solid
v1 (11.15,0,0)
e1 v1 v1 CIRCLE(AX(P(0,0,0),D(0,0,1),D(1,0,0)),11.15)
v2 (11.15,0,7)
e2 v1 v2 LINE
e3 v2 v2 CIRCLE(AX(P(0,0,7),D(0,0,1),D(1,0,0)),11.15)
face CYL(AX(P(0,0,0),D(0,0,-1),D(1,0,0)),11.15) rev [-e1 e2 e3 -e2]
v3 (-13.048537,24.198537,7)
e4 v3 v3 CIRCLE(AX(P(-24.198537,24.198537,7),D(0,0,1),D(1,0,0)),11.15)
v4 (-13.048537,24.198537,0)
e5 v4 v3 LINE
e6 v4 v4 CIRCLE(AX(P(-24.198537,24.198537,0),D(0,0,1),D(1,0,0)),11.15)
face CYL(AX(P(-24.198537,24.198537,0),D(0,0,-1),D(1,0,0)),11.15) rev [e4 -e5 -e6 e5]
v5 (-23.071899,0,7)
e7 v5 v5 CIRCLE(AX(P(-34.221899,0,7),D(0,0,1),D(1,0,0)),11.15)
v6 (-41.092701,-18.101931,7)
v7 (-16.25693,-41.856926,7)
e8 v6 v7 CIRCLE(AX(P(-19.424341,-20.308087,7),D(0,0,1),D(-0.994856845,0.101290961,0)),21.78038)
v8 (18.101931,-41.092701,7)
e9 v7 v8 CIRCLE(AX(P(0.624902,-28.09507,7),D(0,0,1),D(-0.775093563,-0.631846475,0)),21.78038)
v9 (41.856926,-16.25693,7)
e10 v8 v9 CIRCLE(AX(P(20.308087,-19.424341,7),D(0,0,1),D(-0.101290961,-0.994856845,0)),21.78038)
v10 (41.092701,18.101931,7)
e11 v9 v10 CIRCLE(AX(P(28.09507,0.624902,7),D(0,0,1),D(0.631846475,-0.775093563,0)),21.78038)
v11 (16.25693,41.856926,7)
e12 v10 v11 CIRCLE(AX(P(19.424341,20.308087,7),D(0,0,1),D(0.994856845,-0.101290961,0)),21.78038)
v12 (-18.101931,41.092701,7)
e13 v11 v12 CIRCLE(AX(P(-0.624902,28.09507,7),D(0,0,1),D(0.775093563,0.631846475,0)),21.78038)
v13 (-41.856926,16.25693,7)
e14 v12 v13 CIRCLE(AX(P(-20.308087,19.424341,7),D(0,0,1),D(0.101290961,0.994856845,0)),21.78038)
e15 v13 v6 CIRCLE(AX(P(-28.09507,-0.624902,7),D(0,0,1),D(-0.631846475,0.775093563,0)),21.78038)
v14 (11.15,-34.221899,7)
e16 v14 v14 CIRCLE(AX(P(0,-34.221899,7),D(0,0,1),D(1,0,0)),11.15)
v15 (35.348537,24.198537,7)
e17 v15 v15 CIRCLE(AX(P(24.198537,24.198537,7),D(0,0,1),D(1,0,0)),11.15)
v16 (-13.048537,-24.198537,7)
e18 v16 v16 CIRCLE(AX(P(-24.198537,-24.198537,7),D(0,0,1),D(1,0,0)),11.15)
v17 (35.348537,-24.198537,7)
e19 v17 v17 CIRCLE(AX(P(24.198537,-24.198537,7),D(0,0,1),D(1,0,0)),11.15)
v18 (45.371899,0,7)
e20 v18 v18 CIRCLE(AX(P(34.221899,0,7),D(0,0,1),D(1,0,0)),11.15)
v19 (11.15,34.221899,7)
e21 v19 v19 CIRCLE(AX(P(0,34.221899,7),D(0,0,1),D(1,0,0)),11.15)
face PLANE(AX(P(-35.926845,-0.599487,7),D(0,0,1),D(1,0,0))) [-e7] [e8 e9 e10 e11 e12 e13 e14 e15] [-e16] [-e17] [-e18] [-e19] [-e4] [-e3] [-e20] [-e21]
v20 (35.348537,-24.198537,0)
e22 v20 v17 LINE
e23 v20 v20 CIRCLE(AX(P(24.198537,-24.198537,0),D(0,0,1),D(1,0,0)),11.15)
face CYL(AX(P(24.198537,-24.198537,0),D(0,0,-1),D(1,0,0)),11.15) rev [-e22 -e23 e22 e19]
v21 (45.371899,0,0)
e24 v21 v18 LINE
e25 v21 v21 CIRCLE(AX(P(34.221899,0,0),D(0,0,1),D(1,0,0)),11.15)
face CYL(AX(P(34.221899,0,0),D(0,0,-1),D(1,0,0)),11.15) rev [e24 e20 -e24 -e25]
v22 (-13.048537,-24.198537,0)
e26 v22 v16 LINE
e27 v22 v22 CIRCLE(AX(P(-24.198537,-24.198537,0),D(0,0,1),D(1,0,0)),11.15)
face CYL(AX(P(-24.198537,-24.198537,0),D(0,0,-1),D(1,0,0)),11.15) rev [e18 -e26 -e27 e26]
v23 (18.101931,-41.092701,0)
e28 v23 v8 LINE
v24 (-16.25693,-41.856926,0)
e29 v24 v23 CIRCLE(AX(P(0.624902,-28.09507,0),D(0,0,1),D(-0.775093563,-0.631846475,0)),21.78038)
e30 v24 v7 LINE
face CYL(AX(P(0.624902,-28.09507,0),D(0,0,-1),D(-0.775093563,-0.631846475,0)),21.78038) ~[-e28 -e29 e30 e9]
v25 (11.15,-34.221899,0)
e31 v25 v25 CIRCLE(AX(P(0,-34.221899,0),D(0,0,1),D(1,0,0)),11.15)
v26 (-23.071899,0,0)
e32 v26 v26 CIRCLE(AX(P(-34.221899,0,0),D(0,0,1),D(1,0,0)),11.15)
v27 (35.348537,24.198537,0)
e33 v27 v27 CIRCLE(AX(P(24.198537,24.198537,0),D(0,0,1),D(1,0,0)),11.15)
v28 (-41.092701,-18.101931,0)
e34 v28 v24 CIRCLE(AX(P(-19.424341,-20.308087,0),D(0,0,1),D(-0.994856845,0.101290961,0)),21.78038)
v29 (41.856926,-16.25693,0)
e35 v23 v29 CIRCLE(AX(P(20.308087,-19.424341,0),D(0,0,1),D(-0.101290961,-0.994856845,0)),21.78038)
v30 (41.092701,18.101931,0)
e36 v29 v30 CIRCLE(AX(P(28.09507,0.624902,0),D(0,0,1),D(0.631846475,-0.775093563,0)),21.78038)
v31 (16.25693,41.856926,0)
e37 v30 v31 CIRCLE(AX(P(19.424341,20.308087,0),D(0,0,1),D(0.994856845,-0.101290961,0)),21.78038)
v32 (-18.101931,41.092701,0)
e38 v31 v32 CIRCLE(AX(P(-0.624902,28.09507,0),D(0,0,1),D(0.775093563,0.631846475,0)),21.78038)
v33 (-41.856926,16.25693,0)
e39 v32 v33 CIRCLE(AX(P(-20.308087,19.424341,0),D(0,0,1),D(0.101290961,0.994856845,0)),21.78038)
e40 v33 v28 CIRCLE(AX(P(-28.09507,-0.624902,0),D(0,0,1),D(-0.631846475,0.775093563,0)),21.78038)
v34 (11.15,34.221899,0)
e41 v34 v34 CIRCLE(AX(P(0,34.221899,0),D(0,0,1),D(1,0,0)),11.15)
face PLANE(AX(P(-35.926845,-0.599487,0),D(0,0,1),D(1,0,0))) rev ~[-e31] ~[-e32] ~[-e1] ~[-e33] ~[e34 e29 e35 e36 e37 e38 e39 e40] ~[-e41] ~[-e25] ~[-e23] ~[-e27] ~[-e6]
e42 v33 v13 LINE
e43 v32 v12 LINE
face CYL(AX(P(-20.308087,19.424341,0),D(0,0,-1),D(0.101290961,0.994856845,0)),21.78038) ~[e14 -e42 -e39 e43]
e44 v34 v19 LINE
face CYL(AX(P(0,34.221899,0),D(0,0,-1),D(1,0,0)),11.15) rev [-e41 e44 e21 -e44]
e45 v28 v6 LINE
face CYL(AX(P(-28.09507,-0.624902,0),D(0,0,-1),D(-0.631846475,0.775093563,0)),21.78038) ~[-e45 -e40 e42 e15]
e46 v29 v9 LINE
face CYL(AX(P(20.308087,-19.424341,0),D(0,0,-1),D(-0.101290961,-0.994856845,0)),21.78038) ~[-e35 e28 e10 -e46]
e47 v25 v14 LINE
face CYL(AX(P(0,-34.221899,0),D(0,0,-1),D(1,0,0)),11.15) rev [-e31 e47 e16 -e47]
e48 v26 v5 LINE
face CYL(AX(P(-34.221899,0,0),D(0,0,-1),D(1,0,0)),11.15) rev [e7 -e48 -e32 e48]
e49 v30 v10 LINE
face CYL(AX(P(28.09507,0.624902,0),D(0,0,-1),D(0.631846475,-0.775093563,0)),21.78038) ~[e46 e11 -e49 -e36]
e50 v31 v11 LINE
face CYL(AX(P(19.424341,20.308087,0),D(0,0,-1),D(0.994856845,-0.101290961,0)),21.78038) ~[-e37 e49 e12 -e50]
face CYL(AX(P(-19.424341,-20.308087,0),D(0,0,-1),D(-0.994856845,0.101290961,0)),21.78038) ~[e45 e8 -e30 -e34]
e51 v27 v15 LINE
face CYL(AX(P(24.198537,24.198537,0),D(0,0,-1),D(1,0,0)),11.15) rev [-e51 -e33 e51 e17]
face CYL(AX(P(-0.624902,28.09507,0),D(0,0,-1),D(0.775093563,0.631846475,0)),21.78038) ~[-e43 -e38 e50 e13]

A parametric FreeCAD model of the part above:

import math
import FreeCAD as App
import Part
import Sketcher

V = App.Vector
Q = App.Units.Quantity

doc = App.newDocument("Part")
body = doc.addObject("PartDesign::Body", "Body")

# Sketch on XY plane
sketch1 = body.newObject("Sketcher::SketchObject", "Sketch")
sketch1.AttachmentSupport = (doc.getObject("XY_Plane"), [""])
sketch1.MapMode = "FlatFace"
sketch1.addGeometry(Part.ArcOfCircle(Part.Circle(V(-28, -1, 0), V(0, 0, 1), 22), math.radians(129), math.radians(233)), False)
sketch1.addGeometry(Part.ArcOfCircle(Part.Circle(V(-19, -20, 0), V(0, 0, 1), 22), math.radians(174), math.radians(278)), False)
sketch1.addGeometry(Part.ArcOfCircle(Part.Circle(V(1, -28, 0), V(0, 0, 1), 22), math.radians(-141), math.radians(-37)), False)
sketch1.addGeometry(Part.ArcOfCircle(Part.Circle(V(20, -19, 0), V(0, 0, 1), 22), math.radians(-96), math.radians(8)), False)
sketch1.addGeometry(Part.ArcOfCircle(Part.Circle(V(28, 1, 0), V(0, 0, 1), 22), math.radians(-51), math.radians(53)), False)
sketch1.addGeometry(Part.ArcOfCircle(Part.Circle(V(19, 20, 0), V(0, 0, 1), 22), math.radians(-6), math.radians(98)), False)
sketch1.addGeometry(Part.ArcOfCircle(Part.Circle(V(-1, 28, 0), V(0, 0, 1), 22), math.radians(39), math.radians(143)), False)
sketch1.addGeometry(Part.ArcOfCircle(Part.Circle(V(-20, 19, 0), V(0, 0, 1), 22), math.radians(84), math.radians(188)), False)
sketch1.addGeometry(Part.Circle(V(-24, -24, 0), V(0, 0, 1), 11), False)
sketch1.addGeometry(Part.Circle(V(0, -34, 0), V(0, 0, 1), 11), False)
sketch1.addGeometry(Part.Circle(V(24, -24, 0), V(0, 0, 1), 11), False)
sketch1.addGeometry(Part.Circle(V(-34, 0, 0), V(0, 0, 1), 11), False)
sketch1.addGeometry(Part.Circle(V(-24, 24, 0), V(0, 0, 1), 11), False)
sketch1.addGeometry(Part.Circle(V(0, 0, 0), V(0, 0, 1), 11), False)
sketch1.addGeometry(Part.Circle(V(34, 0, 0), V(0, 0, 1), 11), False)
sketch1.addGeometry(Part.Circle(V(0, 34, 0), V(0, 0, 1), 11), False)
sketch1.addGeometry(Part.Circle(V(24, 24, 0), V(0, 0, 1), 11), False)
sketch1.addConstraint(Sketcher.Constraint("Coincident", 0, 2, 1, 1))
sketch1.addConstraint(Sketcher.Constraint("Coincident", 1, 2, 2, 1))
sketch1.addConstraint(Sketcher.Constraint("Coincident", 2, 2, 3, 1))
sketch1.addConstraint(Sketcher.Constraint("Coincident", 3, 2, 4, 1))
sketch1.addConstraint(Sketcher.Constraint("Coincident", 4, 2, 5, 1))
sketch1.addConstraint(Sketcher.Constraint("Coincident", 5, 2, 6, 1))
sketch1.addConstraint(Sketcher.Constraint("Coincident", 6, 2, 7, 1))
sketch1.addConstraint(Sketcher.Constraint("Coincident", 7, 2, 0, 1))
sketch1.addConstraint(Sketcher.Constraint("Coincident", 13, 3, -1, 1))
sketch1.addConstraint(Sketcher.Constraint("Equal", 0, 1))
sketch1.addConstraint(Sketcher.Constraint("Equal", 1, 2))
sketch1.addConstraint(Sketcher.Constraint("Equal", 2, 3))
sketch1.addConstraint(Sketcher.Constraint("Equal", 3, 4))
sketch1.addConstraint(Sketcher.Constraint("Equal", 4, 5))
sketch1.addConstraint(Sketcher.Constraint("Equal", 5, 6))
sketch1.addConstraint(Sketcher.Constraint("Equal", 6, 7))
sketch1.addConstraint(Sketcher.Constraint("Equal", 8, 9))
sketch1.addConstraint(Sketcher.Constraint("Equal", 9, 10))
sketch1.addConstraint(Sketcher.Constraint("Equal", 10, 11))
sketch1.addConstraint(Sketcher.Constraint("Equal", 11, 12))
sketch1.addConstraint(Sketcher.Constraint("Equal", 12, 13))
sketch1.addConstraint(Sketcher.Constraint("Equal", 13, 14))
sketch1.addConstraint(Sketcher.Constraint("Equal", 14, 15))
sketch1.addConstraint(Sketcher.Constraint("Equal", 15, 16))
sketch1.addConstraint(Sketcher.Constraint("Symmetric", 0, 3, 4, 3, -1, 1))
sketch1.addConstraint(Sketcher.Constraint("Symmetric", 1, 3, 5, 3, -1, 1))
sketch1.addConstraint(Sketcher.Constraint("Symmetric", 2, 3, 6, 3, -1, 1))
sketch1.addConstraint(Sketcher.Constraint("Symmetric", 3, 3, 7, 3, -1, 1))
sketch1.addConstraint(Sketcher.Constraint("Symmetric", 10, 3, 12, 3, -1, 1))
sketch1.addConstraint(Sketcher.Constraint("Symmetric", 11, 3, 14, 3, -1, 1))
sketch1.addConstraint(Sketcher.Constraint("Symmetric", 9, 3, 15, 3, -1, 1))
sketch1.addConstraint(Sketcher.Constraint("Symmetric", 8, 3, 16, 3, -1, 1))
sketch1.addConstraint(Sketcher.Constraint("Symmetric", 8, 3, 10, 3, -2))
sketch1.addConstraint(Sketcher.Constraint("PointOnObject", 9, 3, -2))
sketch1.addConstraint(Sketcher.Constraint("PointOnObject", 11, 3, -1))
sketch1.addConstraint(Sketcher.Constraint("Diameter", 8, Q("22.3 mm")))
sketch1.addConstraint(Sketcher.Constraint("Radius", 0, Q("21.78038 mm")))
sketch1.addConstraint(Sketcher.Constraint("DistanceY", 9, 3, -1, 1, Q("34.221899 mm")))
sketch1.addConstraint(Sketcher.Constraint("DistanceX", 11, 3, -1, 1, Q("34.221899 mm")))
sketch1.addConstraint(Sketcher.Constraint("DistanceX", 0, 2, -1, 1, Q("41.092701 mm")))
sketch1.addConstraint(Sketcher.Constraint("DistanceY", 2, 2, -1, 1, Q("41.092701 mm")))
sketch1.addConstraint(Sketcher.Constraint("DistanceX", 0, 3, -1, 1, Q("28.09507 mm")))
sketch1.addConstraint(Sketcher.Constraint("DistanceX", 1, 3, -1, 1, Q("19.424341 mm")))
sketch1.addConstraint(Sketcher.Constraint("DistanceY", 2, 3, -1, 1, Q("28.09507 mm")))
sketch1.addConstraint(Sketcher.Constraint("DistanceY", 3, 3, -1, 1, Q("19.424341 mm")))
sketch1.addConstraint(Sketcher.Constraint("DistanceY", 0, 2, -1, 1, Q("18.101931 mm")))
sketch1.addConstraint(Sketcher.Constraint("DistanceX", 1, 2, -1, 1, Q("16.25693 mm")))
sketch1.addConstraint(Sketcher.Constraint("DistanceY", 8, 3, 1, 3, Q("3.89045 mm")))
sketch1.addConstraint(Sketcher.Constraint("DistanceX", 8, 3, 2, 3, Q("24.823439 mm")))
pad1 = body.newObject("PartDesign::Pad", "Pad")
pad1.Profile = sketch1
pad1.Length = 7

doc.recompute()
